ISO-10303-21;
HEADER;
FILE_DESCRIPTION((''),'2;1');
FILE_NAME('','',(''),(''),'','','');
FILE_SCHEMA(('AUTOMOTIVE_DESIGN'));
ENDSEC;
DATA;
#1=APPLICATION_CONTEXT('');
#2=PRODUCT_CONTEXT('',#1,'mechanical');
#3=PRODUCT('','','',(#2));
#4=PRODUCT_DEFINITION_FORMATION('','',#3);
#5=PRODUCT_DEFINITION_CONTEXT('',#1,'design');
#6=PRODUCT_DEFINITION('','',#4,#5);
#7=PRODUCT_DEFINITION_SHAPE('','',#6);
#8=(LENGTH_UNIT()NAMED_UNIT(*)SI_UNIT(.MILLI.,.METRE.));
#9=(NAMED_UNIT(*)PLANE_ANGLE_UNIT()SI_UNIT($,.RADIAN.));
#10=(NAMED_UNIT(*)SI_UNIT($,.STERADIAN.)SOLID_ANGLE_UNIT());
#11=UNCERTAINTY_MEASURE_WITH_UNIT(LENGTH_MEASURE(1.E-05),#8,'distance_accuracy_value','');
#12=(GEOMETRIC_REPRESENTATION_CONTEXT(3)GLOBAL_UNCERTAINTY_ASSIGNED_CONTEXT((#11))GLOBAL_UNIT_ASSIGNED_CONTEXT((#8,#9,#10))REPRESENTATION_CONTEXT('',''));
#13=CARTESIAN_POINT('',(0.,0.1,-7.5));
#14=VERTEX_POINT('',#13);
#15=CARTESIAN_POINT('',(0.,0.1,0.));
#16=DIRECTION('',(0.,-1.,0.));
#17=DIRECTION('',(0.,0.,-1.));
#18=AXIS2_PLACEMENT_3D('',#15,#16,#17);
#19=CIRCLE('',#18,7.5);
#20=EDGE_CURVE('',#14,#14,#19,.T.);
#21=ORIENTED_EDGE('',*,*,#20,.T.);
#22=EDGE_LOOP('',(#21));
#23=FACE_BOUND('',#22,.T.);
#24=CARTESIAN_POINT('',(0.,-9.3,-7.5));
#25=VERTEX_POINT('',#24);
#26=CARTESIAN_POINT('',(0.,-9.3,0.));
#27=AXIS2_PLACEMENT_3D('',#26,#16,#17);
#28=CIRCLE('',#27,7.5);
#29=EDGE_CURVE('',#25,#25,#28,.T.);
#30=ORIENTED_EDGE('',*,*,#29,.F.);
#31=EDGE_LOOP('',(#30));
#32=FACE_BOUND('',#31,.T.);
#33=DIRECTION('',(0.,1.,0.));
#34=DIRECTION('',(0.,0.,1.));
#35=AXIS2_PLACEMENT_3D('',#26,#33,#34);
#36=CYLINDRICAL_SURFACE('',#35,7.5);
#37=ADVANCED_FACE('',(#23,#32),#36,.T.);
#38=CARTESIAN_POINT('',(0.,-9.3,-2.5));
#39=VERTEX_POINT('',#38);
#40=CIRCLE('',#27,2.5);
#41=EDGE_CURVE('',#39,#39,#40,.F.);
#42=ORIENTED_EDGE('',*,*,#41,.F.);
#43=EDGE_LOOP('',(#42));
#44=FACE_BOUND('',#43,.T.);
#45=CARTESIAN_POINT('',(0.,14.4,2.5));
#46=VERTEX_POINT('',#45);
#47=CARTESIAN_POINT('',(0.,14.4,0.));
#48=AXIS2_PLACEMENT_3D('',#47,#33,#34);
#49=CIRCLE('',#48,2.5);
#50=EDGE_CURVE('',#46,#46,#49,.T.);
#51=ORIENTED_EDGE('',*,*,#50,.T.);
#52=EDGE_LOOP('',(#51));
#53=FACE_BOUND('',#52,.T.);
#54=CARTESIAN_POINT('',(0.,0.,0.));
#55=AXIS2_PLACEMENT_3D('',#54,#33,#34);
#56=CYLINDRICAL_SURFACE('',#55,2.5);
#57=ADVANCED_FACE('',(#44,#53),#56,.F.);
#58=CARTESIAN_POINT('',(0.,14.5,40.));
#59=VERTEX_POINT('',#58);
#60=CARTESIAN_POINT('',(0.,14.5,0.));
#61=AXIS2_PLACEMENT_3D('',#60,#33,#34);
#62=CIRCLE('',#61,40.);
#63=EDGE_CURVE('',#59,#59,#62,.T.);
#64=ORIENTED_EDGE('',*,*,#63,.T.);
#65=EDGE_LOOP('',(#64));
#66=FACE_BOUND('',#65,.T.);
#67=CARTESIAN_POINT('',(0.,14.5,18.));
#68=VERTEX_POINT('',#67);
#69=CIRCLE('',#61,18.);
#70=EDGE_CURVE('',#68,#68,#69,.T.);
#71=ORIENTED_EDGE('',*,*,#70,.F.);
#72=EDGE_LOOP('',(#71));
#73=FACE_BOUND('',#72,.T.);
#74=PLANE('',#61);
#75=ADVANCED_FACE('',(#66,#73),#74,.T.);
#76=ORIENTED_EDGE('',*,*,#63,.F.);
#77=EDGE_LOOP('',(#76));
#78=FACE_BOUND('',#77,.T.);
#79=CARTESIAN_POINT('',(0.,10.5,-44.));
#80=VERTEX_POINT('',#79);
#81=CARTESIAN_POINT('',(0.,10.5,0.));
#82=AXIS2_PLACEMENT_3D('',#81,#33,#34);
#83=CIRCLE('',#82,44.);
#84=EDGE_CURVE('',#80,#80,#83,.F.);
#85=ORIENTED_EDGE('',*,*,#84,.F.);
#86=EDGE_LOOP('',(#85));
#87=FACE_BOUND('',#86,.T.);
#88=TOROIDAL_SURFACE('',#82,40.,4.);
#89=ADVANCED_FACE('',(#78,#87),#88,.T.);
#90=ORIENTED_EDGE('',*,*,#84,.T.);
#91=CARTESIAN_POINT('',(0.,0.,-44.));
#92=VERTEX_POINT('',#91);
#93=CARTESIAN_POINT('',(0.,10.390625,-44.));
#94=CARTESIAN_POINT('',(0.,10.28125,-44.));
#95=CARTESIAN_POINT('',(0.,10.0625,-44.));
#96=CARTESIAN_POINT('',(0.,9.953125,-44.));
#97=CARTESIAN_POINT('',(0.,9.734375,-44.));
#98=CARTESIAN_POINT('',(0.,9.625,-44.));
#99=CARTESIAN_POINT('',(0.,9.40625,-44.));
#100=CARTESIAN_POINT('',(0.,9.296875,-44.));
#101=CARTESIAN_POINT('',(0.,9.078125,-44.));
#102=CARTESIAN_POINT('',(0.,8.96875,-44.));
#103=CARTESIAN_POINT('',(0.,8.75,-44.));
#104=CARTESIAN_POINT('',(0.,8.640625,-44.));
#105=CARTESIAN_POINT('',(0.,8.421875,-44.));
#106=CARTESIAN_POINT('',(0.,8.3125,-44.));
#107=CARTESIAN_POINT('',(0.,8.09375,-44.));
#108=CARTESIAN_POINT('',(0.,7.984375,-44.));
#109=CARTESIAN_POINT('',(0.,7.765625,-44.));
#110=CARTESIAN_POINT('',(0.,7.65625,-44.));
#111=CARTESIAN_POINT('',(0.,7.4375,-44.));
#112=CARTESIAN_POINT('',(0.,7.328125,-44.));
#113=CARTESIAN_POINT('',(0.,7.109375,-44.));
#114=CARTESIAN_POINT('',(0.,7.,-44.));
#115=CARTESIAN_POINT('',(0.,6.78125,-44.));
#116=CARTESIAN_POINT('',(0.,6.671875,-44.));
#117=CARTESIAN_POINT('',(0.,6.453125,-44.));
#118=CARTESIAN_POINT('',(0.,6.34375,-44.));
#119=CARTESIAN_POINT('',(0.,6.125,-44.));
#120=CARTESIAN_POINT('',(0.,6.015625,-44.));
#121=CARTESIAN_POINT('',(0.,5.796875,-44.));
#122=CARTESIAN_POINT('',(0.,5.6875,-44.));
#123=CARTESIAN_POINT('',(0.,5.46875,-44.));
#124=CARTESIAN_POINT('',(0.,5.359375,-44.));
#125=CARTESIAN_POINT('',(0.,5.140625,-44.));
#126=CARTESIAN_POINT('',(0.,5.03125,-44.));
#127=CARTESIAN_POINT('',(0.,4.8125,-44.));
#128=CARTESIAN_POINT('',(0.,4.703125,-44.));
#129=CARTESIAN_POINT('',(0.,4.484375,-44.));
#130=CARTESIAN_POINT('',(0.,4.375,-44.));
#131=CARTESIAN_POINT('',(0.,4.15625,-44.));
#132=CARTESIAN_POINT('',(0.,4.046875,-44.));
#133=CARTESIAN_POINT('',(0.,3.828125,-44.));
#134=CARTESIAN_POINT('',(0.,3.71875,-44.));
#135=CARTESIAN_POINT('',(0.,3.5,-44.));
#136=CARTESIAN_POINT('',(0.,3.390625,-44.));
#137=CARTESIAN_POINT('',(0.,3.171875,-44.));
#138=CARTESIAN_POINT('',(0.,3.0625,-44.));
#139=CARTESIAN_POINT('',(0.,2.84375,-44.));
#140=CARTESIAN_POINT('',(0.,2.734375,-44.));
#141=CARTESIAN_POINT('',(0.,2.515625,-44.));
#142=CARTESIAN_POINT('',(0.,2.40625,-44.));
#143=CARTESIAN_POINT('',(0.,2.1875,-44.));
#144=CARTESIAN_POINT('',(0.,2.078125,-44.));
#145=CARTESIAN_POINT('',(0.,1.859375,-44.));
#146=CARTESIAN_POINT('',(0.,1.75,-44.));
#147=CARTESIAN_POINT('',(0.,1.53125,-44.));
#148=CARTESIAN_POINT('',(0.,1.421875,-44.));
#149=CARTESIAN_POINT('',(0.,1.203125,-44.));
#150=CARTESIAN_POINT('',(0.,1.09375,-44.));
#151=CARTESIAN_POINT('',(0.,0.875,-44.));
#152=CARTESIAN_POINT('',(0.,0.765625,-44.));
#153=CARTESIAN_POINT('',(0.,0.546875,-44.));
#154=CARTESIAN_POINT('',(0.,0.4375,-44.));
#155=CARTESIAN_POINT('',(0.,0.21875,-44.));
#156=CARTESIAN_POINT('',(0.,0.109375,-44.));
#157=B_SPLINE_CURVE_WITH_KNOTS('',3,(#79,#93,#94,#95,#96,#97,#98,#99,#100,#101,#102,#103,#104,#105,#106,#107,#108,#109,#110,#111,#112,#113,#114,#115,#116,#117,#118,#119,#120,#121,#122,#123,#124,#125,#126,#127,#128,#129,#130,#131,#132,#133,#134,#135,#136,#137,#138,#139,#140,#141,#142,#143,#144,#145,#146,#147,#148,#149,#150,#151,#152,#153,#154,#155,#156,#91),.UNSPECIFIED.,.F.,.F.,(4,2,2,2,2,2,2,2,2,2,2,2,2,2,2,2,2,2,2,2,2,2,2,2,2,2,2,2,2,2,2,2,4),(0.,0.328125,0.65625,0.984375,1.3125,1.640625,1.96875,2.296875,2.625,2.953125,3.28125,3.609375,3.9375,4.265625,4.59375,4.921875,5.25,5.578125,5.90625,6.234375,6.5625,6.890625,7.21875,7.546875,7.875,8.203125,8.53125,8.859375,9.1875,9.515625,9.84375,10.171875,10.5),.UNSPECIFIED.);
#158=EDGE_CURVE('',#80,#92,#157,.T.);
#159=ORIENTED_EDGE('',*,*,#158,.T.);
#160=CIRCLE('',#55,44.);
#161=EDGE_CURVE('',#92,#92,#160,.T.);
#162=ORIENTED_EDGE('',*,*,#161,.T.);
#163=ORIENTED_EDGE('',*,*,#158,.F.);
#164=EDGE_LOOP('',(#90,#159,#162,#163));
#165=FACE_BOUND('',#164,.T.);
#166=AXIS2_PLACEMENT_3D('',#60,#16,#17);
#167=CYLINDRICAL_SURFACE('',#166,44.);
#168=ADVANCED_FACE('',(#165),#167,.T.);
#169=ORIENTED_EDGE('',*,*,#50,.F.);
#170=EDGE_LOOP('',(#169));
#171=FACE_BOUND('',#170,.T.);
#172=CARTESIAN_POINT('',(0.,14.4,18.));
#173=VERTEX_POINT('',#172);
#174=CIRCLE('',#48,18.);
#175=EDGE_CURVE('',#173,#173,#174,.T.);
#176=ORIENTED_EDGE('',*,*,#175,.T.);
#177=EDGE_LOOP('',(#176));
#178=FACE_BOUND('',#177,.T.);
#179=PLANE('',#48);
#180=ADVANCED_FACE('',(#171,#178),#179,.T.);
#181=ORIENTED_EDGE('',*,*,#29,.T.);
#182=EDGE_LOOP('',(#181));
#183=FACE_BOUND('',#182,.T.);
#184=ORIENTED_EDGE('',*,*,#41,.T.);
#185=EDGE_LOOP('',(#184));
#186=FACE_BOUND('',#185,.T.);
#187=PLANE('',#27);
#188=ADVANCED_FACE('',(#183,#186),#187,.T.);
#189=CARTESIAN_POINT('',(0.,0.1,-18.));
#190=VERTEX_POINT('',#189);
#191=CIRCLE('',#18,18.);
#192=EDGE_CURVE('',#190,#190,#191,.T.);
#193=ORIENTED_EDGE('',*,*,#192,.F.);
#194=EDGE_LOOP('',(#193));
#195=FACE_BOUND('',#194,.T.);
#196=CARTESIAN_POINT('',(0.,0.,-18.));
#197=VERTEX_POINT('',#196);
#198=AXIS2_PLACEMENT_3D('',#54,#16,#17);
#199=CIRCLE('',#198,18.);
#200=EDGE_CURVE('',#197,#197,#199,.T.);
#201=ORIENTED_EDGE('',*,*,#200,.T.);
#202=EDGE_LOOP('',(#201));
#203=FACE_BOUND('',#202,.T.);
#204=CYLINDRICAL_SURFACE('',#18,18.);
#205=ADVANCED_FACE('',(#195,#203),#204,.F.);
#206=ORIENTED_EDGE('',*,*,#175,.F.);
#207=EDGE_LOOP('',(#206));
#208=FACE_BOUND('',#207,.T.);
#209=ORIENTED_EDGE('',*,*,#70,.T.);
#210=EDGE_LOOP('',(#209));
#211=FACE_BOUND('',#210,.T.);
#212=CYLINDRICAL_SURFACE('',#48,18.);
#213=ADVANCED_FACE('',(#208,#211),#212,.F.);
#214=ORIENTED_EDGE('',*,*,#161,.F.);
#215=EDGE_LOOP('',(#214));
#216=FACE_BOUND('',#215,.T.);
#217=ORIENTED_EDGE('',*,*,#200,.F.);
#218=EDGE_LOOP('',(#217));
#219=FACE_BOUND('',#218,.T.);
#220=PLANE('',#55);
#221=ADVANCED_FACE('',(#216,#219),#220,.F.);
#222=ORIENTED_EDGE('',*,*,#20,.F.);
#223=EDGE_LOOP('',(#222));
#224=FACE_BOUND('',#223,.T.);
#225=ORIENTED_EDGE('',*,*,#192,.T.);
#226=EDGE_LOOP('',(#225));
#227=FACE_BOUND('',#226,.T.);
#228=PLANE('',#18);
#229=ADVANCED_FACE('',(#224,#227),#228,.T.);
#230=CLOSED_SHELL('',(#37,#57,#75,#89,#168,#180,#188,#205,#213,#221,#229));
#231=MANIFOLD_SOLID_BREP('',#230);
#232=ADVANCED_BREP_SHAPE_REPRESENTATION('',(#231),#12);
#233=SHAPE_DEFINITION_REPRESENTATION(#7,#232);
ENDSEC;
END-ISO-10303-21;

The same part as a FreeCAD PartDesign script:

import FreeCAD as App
import Part
import Sketcher
from FreeCAD import Vector
Q = App.Units.Quantity


def edges_at(feature, points):
    """Names of the edges that pass closest to the given points."""
    edges = feature.Shape.Edges
    near = lambda p: min(range(len(edges)), key=lambda i: edges[i].distToShape(Part.Vertex(*p))[0])
    return sorted({f"Edge{near(p) + 1}" for p in points})

doc = App.newDocument("Part")
body = doc.addObject("PartDesign::Body", "Body")

# Sketch on XZ plane
sketch1 = body.newObject("Sketcher::SketchObject", "Sketch")
sketch1.AttachmentSupport = (doc.getObject("XZ_Plane"), [""])
sketch1.MapMode = "FlatFace"
sketch1.addGeometry(Part.Circle(Vector(0, 0, 0), Vector(0, 0, 1), 44), False)
sketch1.addConstraint([
    Sketcher.Constraint("Coincident", 0, 3, -1, 1),
    Sketcher.Constraint("Diameter", 0, Q("88 mm")),
])
pad1 = body.newObject("PartDesign::Pad", "Pad")
pad1.Profile = sketch1
pad1.Length = 14.5
pad1.Reversed = True
doc.recompute()

fillet = body.newObject("PartDesign::Fillet", "Fillet")
fillet.Base = (pad1, edges_at(pad1, [(0, 14.5, 44)]))
fillet.Radius = 4

# Sketch on XZ plane
sketch2 = body.newObject("Sketcher::SketchObject", "Sketch001")
sketch2.AttachmentSupport = (doc.getObject("XZ_Plane"), [""])
sketch2.MapMode = "FlatFace"
sketch2.AttachmentOffset = App.Placement(Vector(0, 0, -14.5), App.Rotation())
sketch2.addGeometry(Part.Circle(Vector(0, 0, 0), Vector(0, 0, 1), 18), False)
sketch2.addConstraint([
    Sketcher.Constraint("Coincident", 0, 3, -1, 1),
    Sketcher.Constraint("Diameter", 0, Q("36 mm")),
])
pocket1 = body.newObject("PartDesign::Pocket", "Pocket")
pocket1.Profile = sketch2
pocket1.Length = 0.1
pocket1.Reversed = True

# Sketch on XZ plane
sketch3 = body.newObject("Sketcher::SketchObject", "Sketch002")
sketch3.AttachmentSupport = (doc.getObject("XZ_Plane"), [""])
sketch3.MapMode = "FlatFace"
sketch3.AttachmentOffset = App.Placement(Vector(0, 0, -14.4), App.Rotation())
sketch3.addGeometry(Part.Circle(Vector(0, 0, 0), Vector(0, 0, 1), 2.5), False)
sketch3.addConstraint([
    Sketcher.Constraint("Coincident", 0, 3, -1, 1),
    Sketcher.Constraint("Diameter", 0, Q("5 mm")),
])
pocket2 = body.newObject("PartDesign::Pocket", "Pocket001")
pocket2.Profile = sketch3
pocket2.Type = "ThroughAll"
pocket2.Reversed = True

# Sketch on XZ plane
sketch4 = body.newObject("Sketcher::SketchObject", "Sketch003")
sketch4.AttachmentSupport = (doc.getObject("XZ_Plane"), [""])
sketch4.MapMode = "FlatFace"
sketch4.addGeometry([
    Part.Circle(Vector(0, 0, 0), Vector(0, 0, 1), 7.5),
    Part.Circle(Vector(0, 0, 0), Vector(0, 0, 1), 2.5),
], False)
sketch4.addConstraint([
    Sketcher.Constraint("Coincident", 0, 3, -1, 1),
    Sketcher.Constraint("Coincident", 1, 3, -1, 1),
    Sketcher.Constraint("Diameter", 0, Q("15 mm")),
    Sketcher.Constraint("Diameter", 1, Q("5 mm")),
])
pad2 = body.newObject("PartDesign::Pad", "Pad001")
pad2.Profile = sketch4
pad2.Length = 9.3

# Sketch on XZ plane
sketch5 = body.newObject("Sketcher::SketchObject", "Sketch004")
sketch5.AttachmentSupport = (doc.getObject("XZ_Plane"), [""])
sketch5.MapMode = "FlatFace"
sketch5.AttachmentOffset = App.Placement(Vector(0, 0, -0.1), App.Rotation())
sketch5.addGeometry([
    Part.Circle(Vector(0, 0, 0), Vector(0, 0, 1), 18),
    Part.Circle(Vector(0, 0, 0), Vector(0, 0, 1), 8),
], False)
sketch5.addConstraint([
    Sketcher.Constraint("Coincident", 0, 3, -1, 1),
    Sketcher.Constraint("Coincident", 1, 3, -1, 1),
    Sketcher.Constraint("Diameter", 0, Q("36 mm")),
    Sketcher.Constraint("Diameter", 1, Q("15 mm")),
])
pocket3 = body.newObject("PartDesign::Pocket", "Pocket002")
pocket3.Profile = sketch5
pocket3.Length = 0.1
pocket3.Reversed = True

doc.recompute()
